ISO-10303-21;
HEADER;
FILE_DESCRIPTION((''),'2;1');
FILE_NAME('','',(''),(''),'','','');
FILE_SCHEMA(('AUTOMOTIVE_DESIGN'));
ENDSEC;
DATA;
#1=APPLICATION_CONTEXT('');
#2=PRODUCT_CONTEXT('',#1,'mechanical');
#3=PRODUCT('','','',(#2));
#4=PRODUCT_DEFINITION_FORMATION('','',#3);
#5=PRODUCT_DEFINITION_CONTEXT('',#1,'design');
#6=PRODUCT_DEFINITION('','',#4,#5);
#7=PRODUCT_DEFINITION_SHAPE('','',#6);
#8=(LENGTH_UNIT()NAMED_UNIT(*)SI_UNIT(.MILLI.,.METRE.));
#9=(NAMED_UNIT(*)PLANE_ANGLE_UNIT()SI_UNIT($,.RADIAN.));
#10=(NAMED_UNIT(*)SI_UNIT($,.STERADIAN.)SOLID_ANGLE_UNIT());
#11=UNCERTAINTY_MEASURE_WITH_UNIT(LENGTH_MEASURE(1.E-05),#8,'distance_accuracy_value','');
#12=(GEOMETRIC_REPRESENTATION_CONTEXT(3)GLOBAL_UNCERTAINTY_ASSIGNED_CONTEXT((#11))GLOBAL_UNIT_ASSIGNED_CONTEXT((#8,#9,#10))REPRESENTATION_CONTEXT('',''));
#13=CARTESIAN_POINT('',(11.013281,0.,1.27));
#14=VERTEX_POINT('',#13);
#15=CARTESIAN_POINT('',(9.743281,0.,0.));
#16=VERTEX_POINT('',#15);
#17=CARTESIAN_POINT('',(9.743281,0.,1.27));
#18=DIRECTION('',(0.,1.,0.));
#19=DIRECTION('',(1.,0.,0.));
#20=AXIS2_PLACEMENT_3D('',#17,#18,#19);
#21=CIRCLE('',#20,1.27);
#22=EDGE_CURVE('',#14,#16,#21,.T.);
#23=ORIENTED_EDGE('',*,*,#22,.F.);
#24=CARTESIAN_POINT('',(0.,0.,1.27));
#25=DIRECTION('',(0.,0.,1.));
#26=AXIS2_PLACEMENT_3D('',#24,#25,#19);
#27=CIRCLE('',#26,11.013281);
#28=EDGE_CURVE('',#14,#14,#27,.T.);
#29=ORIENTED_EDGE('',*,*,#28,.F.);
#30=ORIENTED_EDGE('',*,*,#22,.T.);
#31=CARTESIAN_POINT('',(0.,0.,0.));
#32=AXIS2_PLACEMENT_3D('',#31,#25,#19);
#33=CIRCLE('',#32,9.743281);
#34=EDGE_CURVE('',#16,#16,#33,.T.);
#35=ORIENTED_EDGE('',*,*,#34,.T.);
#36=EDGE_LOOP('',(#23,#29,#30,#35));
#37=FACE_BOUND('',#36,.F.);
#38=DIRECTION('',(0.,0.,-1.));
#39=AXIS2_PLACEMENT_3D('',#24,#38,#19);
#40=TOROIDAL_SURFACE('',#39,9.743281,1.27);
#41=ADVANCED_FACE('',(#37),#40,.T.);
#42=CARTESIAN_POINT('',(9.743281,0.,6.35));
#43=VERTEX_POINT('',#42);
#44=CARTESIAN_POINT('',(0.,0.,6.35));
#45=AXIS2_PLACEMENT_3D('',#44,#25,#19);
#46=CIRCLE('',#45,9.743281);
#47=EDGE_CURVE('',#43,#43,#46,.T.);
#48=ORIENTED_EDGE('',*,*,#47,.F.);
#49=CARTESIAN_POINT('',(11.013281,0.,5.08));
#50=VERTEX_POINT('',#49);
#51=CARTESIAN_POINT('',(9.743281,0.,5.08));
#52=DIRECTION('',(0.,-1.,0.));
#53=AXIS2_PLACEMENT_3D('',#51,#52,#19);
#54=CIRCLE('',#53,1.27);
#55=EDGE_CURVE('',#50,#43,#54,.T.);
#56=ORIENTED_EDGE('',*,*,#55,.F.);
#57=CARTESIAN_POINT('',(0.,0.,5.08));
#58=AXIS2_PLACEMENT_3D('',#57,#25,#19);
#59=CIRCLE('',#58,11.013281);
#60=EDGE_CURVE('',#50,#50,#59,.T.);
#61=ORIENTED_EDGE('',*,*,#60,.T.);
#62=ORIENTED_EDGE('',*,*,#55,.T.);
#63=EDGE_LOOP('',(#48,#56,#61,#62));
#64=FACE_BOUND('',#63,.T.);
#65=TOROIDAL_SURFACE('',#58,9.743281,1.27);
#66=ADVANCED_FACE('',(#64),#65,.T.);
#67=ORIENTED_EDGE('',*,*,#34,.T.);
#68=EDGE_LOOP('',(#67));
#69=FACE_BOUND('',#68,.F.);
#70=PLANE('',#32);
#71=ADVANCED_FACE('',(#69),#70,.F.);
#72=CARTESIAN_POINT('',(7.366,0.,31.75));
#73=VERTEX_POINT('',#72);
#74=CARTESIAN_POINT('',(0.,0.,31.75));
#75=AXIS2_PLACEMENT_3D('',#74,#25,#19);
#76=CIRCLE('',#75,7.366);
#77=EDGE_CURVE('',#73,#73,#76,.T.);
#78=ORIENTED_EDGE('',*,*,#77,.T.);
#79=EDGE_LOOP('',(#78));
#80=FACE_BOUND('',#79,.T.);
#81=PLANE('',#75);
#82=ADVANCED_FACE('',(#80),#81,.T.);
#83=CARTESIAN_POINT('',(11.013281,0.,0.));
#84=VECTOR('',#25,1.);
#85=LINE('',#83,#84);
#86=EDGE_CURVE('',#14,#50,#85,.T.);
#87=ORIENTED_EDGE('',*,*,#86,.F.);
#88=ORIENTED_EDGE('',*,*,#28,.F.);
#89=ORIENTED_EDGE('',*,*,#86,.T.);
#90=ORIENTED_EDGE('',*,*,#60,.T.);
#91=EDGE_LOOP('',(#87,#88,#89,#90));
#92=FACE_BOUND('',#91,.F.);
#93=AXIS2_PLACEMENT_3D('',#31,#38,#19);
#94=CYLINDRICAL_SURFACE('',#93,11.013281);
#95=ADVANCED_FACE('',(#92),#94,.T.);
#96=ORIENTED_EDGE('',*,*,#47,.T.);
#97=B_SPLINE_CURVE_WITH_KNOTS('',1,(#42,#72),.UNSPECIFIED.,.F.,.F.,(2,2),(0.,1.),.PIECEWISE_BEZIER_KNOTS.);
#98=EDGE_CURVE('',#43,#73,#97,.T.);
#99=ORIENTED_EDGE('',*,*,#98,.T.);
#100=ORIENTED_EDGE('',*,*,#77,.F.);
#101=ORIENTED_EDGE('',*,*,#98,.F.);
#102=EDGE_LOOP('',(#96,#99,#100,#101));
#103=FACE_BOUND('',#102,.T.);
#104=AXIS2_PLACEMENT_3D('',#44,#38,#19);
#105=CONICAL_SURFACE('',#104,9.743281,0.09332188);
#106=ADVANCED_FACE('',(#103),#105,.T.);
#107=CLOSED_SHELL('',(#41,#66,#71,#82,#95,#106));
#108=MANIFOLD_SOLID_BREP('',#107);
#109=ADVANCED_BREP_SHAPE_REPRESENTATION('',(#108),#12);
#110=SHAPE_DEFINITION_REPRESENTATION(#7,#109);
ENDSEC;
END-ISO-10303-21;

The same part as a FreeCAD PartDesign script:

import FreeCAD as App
import Part
import Sketcher
Q = App.Units.Quantity


def edges_at(feature, points):
    """Names of the edges that pass closest to the given points."""
    edges = feature.Shape.Edges
    near = lambda p: min(range(len(edges)), key=lambda i: edges[i].distToShape(Part.Vertex(*p))[0])
    return sorted({f"Edge{near(p) + 1}" for p in points})

doc = App.newDocument("Part")
params = doc.addObject("Spreadsheet::Sheet", "Params")
for row, (alias, value) in enumerate([
    ("pad1_length", "0.25 in"),
    ("fillet_radius", "0.05 in"),
    ("sketch3_diameter", "0.58 in"),
], start=1):
    params.set(f"A{row}", alias)
    params.set(f"B{row}", "=" + value)
    params.setAlias(f"B{row}", alias)

body = doc.addObject("PartDesign::Body", "Body")

# Sketch on XY plane
sketch1 = body.newObject("Sketcher::SketchObject", "Sketch")
sketch1.AttachmentSupport = (doc.getObject("XY_Plane"), [""])
sketch1.MapMode = "FlatFace"
sketch1.addGeometry(Part.Circle(App.Vector(0, 0, 0), App.Vector(0, 0, 1), 11), False)
sketch1.addConstraint(Sketcher.Constraint("Coincident", 0, 3, -1, 1))
sketch1.addConstraint(Sketcher.Constraint("Diameter", 0, Q("22.026562 mm")))
pad1 = body.newObject("PartDesign::Pad", "Pad")
pad1.Profile = sketch1
pad1.setExpression("Length", "Params.pad1_length")
doc.recompute()

fillet = body.newObject("PartDesign::Fillet", "Fillet")
fillet.Base = (pad1, edges_at(pad1, [(-11.013, 0, 6.35), (-11.013, 0, 0)]))
fillet.setExpression("Radius", "Params.fillet_radius")

# Sketch on XY plane
sketch2 = body.newObject("Sketcher::SketchObject", "Sketch001")
sketch2.AttachmentSupport = (doc.getObject("XY_Plane"), [""])
sketch2.MapMode = "FlatFace"
sketch2.AttachmentOffset = App.Placement(App.Vector(0, 0, 0.25 * 25.4), App.Rotation())
sketch2.addGeometry(Part.Circle(App.Vector(0, 0, 0), App.Vector(0, 0, 1), 10), False)
sketch2.addConstraint(Sketcher.Constraint("Coincident", 0, 3, -1, 1))
sketch2.addConstraint(Sketcher.Constraint("Diameter", 0, Q("19.486562 mm")))

# Sketch on XY plane
sketch3 = body.newObject("Sketcher::SketchObject", "Sketch002")
sketch3.AttachmentSupport = (doc.getObject("XY_Plane"), [""])
sketch3.MapMode = "FlatFace"
sketch3.AttachmentOffset = App.Placement(App.Vector(0, 0, 1.25 * 25.4), App.Rotation())
sketch3.addGeometry(Part.Circle(App.Vector(0, 0, 0), App.Vector(0, 0, 1), 7), False)
sketch3.addConstraint(Sketcher.Constraint("Coincident", 0, 3, -1, 1))
sketch3.addConstraint(Sketcher.Constraint("Diameter", 0, Q("0.58 in")))
sketch3.setExpression("Constraints[1]", "Params.sketch3_diameter")

additiveloft = body.newObject("PartDesign::AdditiveLoft", "AdditiveLoft")
additiveloft.Profile = sketch2
additiveloft.Sections = [sketch3]

doc.recompute()
